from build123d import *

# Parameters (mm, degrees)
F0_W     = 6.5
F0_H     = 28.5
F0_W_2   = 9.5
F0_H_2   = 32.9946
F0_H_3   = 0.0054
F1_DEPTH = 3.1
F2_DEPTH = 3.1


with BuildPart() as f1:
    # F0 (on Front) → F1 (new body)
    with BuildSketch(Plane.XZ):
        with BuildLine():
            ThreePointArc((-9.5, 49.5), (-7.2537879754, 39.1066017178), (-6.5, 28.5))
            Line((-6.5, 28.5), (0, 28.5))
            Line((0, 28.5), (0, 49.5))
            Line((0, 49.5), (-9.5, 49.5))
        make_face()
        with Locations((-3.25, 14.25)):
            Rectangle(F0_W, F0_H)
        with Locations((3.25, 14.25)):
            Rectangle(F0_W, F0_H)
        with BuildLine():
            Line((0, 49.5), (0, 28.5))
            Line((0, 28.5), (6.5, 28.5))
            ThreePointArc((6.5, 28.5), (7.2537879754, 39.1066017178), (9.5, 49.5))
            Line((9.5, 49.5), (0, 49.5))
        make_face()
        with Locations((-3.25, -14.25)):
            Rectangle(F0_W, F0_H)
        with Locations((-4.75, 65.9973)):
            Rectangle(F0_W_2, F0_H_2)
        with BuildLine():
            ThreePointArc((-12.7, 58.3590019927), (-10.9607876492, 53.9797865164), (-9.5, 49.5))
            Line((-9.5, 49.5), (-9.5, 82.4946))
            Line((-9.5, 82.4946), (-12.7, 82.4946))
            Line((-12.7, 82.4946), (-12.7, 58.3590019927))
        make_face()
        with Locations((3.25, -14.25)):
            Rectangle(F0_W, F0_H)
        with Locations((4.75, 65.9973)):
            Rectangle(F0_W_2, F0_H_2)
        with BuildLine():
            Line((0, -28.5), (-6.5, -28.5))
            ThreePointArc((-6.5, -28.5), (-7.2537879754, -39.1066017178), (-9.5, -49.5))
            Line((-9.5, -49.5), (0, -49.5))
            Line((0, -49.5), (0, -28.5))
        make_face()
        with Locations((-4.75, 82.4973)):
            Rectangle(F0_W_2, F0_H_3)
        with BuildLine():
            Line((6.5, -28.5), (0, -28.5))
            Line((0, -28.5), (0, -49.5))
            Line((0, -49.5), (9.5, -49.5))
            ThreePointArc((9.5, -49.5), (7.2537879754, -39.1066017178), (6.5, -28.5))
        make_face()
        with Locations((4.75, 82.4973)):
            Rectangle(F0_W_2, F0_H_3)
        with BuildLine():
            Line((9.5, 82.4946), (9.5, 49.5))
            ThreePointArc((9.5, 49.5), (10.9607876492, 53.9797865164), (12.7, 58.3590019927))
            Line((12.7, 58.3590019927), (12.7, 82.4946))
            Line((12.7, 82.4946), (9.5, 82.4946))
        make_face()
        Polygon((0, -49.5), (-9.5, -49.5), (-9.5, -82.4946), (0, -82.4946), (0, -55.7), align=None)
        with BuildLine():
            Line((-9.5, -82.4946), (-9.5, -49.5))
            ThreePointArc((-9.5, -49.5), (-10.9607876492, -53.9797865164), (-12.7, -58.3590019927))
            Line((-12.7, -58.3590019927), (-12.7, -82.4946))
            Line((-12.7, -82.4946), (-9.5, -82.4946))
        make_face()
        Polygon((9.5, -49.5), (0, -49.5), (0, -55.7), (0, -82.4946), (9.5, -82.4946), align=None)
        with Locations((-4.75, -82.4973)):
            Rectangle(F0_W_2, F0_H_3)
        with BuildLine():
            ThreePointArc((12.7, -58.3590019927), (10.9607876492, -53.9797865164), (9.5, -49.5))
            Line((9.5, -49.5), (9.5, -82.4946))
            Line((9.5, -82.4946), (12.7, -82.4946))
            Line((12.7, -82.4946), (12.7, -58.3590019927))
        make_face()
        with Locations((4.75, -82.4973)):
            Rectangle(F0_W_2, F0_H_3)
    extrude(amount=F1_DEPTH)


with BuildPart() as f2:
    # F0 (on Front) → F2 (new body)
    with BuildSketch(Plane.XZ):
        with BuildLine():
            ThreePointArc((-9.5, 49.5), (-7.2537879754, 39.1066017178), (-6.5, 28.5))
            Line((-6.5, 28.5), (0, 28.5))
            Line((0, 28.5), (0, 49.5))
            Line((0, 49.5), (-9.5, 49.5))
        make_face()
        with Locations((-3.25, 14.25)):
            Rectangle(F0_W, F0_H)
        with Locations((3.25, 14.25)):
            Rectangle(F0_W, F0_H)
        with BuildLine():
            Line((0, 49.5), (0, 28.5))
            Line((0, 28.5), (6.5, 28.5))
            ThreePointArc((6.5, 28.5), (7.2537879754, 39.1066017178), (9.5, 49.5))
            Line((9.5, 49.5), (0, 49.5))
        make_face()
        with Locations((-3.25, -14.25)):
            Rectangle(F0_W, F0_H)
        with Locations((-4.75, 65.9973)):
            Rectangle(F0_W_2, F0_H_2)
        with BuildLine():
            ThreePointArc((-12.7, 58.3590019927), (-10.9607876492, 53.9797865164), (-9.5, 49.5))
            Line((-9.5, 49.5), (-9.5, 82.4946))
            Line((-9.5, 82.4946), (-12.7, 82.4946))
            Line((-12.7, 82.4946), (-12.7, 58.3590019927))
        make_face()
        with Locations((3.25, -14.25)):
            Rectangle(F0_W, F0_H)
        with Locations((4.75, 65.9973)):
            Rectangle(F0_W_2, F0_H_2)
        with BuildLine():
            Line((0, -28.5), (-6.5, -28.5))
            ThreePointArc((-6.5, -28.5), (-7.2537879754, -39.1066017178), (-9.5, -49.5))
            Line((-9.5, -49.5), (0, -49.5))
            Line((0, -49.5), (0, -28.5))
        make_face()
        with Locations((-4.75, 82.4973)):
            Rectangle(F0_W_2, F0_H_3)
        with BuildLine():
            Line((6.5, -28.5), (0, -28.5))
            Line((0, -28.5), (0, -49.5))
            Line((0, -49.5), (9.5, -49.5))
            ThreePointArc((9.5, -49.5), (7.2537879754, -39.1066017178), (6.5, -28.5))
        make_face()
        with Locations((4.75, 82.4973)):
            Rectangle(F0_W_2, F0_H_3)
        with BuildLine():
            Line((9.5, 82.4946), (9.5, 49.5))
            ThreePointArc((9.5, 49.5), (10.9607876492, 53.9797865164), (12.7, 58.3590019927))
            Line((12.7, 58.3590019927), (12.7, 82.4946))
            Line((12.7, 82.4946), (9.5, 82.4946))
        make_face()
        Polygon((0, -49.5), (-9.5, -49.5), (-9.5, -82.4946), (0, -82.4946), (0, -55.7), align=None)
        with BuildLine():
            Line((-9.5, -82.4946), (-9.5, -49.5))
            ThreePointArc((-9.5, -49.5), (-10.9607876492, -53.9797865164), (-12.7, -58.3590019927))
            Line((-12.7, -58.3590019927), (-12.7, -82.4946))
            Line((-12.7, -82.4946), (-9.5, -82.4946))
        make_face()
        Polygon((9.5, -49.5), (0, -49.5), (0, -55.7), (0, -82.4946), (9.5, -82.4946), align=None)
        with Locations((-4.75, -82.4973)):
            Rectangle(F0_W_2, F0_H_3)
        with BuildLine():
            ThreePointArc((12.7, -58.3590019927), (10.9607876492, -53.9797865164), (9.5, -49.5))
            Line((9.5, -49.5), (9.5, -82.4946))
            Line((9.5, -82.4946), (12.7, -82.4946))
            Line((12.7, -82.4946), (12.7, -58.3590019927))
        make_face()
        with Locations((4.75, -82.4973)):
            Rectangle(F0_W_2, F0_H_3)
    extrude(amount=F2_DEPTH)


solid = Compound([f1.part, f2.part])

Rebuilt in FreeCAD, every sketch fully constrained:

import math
import FreeCAD as App
import Part
import Sketcher
Q = App.Units.Quantity

doc = App.newDocument("Part")
body = doc.addObject("PartDesign::Body", "Body")

sketch1 = body.newObject("Sketcher::SketchObject", "Sketch")
sketch1.AttachmentSupport = (doc.getObject("XZ_Plane"), [""])
sketch1.MapMode = "FlatFace"
sketch1.addGeometry(Part.ArcOfCircle(Part.Circle(App.Vector(-81.5, 28.5, 0), App.Vector(0, 0, 1), 75), math.radians(0), math.radians(16.26)), False)
sketch1.addGeometry(Part.LineSegment(App.Vector(-6.5, 28.5, 0), App.Vector(-6.5, -28.5, 0)), False)
sketch1.addGeometry(Part.ArcOfCircle(Part.Circle(App.Vector(-81.5, -28.5, 0), App.Vector(0, 0, 1), 75), math.radians(-16.26), math.radians(0)), False)
sketch1.addGeometry(Part.ArcOfCircle(Part.Circle(App.Vector(-81.5, -28.5, 0), App.Vector(0, 0, 1), 75), math.radians(-23.46), math.radians(-16.26)), False)
sketch1.addGeometry(Part.LineSegment(App.Vector(-12.7, -58.359, 0), App.Vector(-12.7, -82.495, 0)), False)
sketch1.addGeometry(Part.LineSegment(App.Vector(-12.7, -82.495, 0), App.Vector(-9.5, -82.495, 0)), False)
sketch1.addGeometry(Part.LineSegment(App.Vector(-9.5, -82.495, 0), App.Vector(-9.5, -82.5, 0)), False)
sketch1.addGeometry(Part.LineSegment(App.Vector(-9.5, -82.5, 0), App.Vector(9.5, -82.5, 0)), False)
sketch1.addGeometry(Part.LineSegment(App.Vector(9.5, -82.5, 0), App.Vector(9.5, -82.495, 0)), False)
sketch1.addGeometry(Part.LineSegment(App.Vector(9.5, -82.495, 0), App.Vector(12.7, -82.495, 0)), False)
sketch1.addGeometry(Part.LineSegment(App.Vector(12.7, -82.495, 0), App.Vector(12.7, -58.359, 0)), False)
sketch1.addGeometry(Part.ArcOfCircle(Part.Circle(App.Vector(81.5, -28.5, 0), App.Vector(0, 0, 1), 75), math.radians(-163.74), math.radians(-156.54)), False)
sketch1.addGeometry(Part.ArcOfCircle(Part.Circle(App.Vector(81.5, -28.5, 0), App.Vector(0, 0, 1), 75), math.radians(180), math.radians(196.26)), False)
sketch1.addGeometry(Part.LineSegment(App.Vector(6.5, -28.5, 0), App.Vector(6.5, 28.5, 0)), False)
sketch1.addGeometry(Part.ArcOfCircle(Part.Circle(App.Vector(81.5, 28.5, 0), App.Vector(0, 0, 1), 75), math.radians(163.74), math.radians(180)), False)
sketch1.addGeometry(Part.ArcOfCircle(Part.Circle(App.Vector(81.5, 28.5, 0), App.Vector(0, 0, 1), 75), math.radians(156.54), math.radians(163.74)), False)
sketch1.addGeometry(Part.LineSegment(App.Vector(12.7, 58.359, 0), App.Vector(12.7, 82.495, 0)), False)
sketch1.addGeometry(Part.LineSegment(App.Vector(12.7, 82.495, 0), App.Vector(9.5, 82.495, 0)), False)
sketch1.addGeometry(Part.LineSegment(App.Vector(9.5, 82.495, 0), App.Vector(9.5, 82.5, 0)), False)
sketch1.addGeometry(Part.LineSegment(App.Vector(9.5, 82.5, 0), App.Vector(-9.5, 82.5, 0)), False)
sketch1.addGeometry(Part.LineSegment(App.Vector(-9.5, 82.5, 0), App.Vector(-9.5, 82.495, 0)), False)
sketch1.addGeometry(Part.LineSegment(App.Vector(-9.5, 82.495, 0), App.Vector(-12.7, 82.495, 0)), False)
sketch1.addGeometry(Part.LineSegment(App.Vector(-12.7, 82.495, 0), App.Vector(-12.7, 58.359, 0)), False)
sketch1.addGeometry(Part.ArcOfCircle(Part.Circle(App.Vector(-81.5, 28.5, 0), App.Vector(0, 0, 1), 75), math.radians(16.26), math.radians(23.46)), False)
sketch1.addConstraint(Sketcher.Constraint("Tangent", 0, 1, 1, 1))
sketch1.addConstraint(Sketcher.Constraint("Tangent", 1, 2, 2, 2))
sketch1.addConstraint(Sketcher.Constraint("Tangent", 2, 1, 3, 2))
sketch1.addConstraint(Sketcher.Constraint("Coincident", 3, 1, 4, 1))
sketch1.addConstraint(Sketcher.Constraint("Coincident", 4, 2, 5, 1))
sketch1.addConstraint(Sketcher.Constraint("Coincident", 5, 2, 6, 1))
sketch1.addConstraint(Sketcher.Constraint("Coincident", 6, 2, 7, 1))
sketch1.addConstraint(Sketcher.Constraint("Coincident", 7, 2, 8, 1))
sketch1.addConstraint(Sketcher.Constraint("Coincident", 8, 2, 9, 1))
sketch1.addConstraint(Sketcher.Constraint("Coincident", 9, 2, 10, 1))
sketch1.addConstraint(Sketcher.Constraint("Coincident", 10, 2, 11, 2))
sketch1.addConstraint(Sketcher.Constraint("Tangent", 11, 1, 12, 2))
sketch1.addConstraint(Sketcher.Constraint("Tangent", 12, 1, 13, 1))
sketch1.addConstraint(Sketcher.Constraint("Tangent", 13, 2, 14, 2))
sketch1.addConstraint(Sketcher.Constraint("Tangent", 14, 1, 15, 2))
sketch1.addConstraint(Sketcher.Constraint("Coincident", 15, 1, 16, 1))
sketch1.addConstraint(Sketcher.Constraint("Coincident", 16, 2, 17, 1))
sketch1.addConstraint(Sketcher.Constraint("Coincident", 17, 2, 18, 1))
sketch1.addConstraint(Sketcher.Constraint("Coincident", 18, 2, 19, 1))
sketch1.addConstraint(Sketcher.Constraint("Coincident", 19, 2, 20, 1))
sketch1.addConstraint(Sketcher.Constraint("Coincident", 20, 2, 21, 1))
sketch1.addConstraint(Sketcher.Constraint("Coincident", 21, 2, 22, 1))
sketch1.addConstraint(Sketcher.Constraint("Coincident", 22, 2, 23, 2))
sketch1.addConstraint(Sketcher.Constraint("Tangent", 23, 1, 0, 2))
sketch1.addConstraint(Sketcher.Constraint("Vertical", 1))
sketch1.addConstraint(Sketcher.Constraint("Vertical", 4))
sketch1.addConstraint(Sketcher.Constraint("Horizontal", 5))
sketch1.addConstraint(Sketcher.Constraint("Vertical", 6))
sketch1.addConstraint(Sketcher.Constraint("Horizontal", 7))
sketch1.addConstraint(Sketcher.Constraint("Vertical", 8))
sketch1.addConstraint(Sketcher.Constraint("Horizontal", 9))
sketch1.addConstraint(Sketcher.Constraint("Vertical", 10))
sketch1.addConstraint(Sketcher.Constraint("Vertical", 13))
sketch1.addConstraint(Sketcher.Constraint("Vertical", 16))
sketch1.addConstraint(Sketcher.Constraint("Horizontal", 17))
sketch1.addConstraint(Sketcher.Constraint("Vertical", 18))
sketch1.addConstraint(Sketcher.Constraint("Horizontal", 19))
sketch1.addConstraint(Sketcher.Constraint("Vertical", 20))
sketch1.addConstraint(Sketcher.Constraint("Horizontal", 21))
sketch1.addConstraint(Sketcher.Constraint("Vertical", 22))
sketch1.addConstraint(Sketcher.Constraint("Equal", 0, 2))
sketch1.addConstraint(Sketcher.Constraint("Equal", 2, 3))
sketch1.addConstraint(Sketcher.Constraint("Equal", 3, 11))
sketch1.addConstraint(Sketcher.Constraint("Equal", 11, 12))
sketch1.addConstraint(Sketcher.Constraint("Equal", 12, 14))
sketch1.addConstraint(Sketcher.Constraint("Equal", 14, 15))
sketch1.addConstraint(Sketcher.Constraint("Equal", 15, 23))
sketch1.addConstraint(Sketcher.Constraint("Symmetric", 0, 3, 11, 3, -1, 1))
sketch1.addConstraint(Sketcher.Constraint("Symmetric", 2, 1, 14, 1, -1, 1))
sketch1.addConstraint(Sketcher.Constraint("Symmetric", 4, 2, 16, 2, -1, 1))
sketch1.addConstraint(Sketcher.Constraint("Symmetric", 6, 2, 18, 2, -1, 1))
sketch1.addConstraint(Sketcher.Constraint("Symmetric", 8, 2, 20, 2, -1, 1))
sketch1.addConstraint(Sketcher.Constraint("Symmetric", 5, 2, 8, 2, -2))
sketch1.addConstraint(Sketcher.Constraint("Symmetric", 3, 1, 10, 2, -2))
sketch1.addConstraint(Sketcher.Constraint("Horizontal", 2, 1, 11, 1))
sketch1.addConstraint(Sketcher.Constraint("Horizontal", 15, 1, 22, 2))
sketch1.addConstraint(Sketcher.Constraint("Horizontal", 14, 1, 23, 1))
sketch1.addConstraint(Sketcher.Constraint("Vertical", 2, 1, 5, 2))
sketch1.addConstraint(Sketcher.Constraint("Radius", 0, Q("75 mm")))
sketch1.addConstraint(Sketcher.Constraint("DistanceX", 7, 1, 7, 2, Q("19 mm")))
sketch1.addConstraint(Sketcher.Constraint("DistanceY", 1, 2, 1, 1, Q("57 mm")))
sketch1.addConstraint(Sketcher.Constraint("DistanceX", 5, 1, 5, 2, Q("3.2 mm")))
sketch1.addConstraint(Sketcher.Constraint("DistanceX", 2, 3, 11, 3, Q("163 mm")))
sketch1.addConstraint(Sketcher.Constraint("DistanceY", 6, 2, 2, 1, Q("33 mm")))
sketch1.addConstraint(Sketcher.Constraint("DistanceY", 4, 2, 4, 1, Q("24.135598 mm")))
pad1 = body.newObject("PartDesign::Pad", "Pad")
pad1.Profile = sketch1
pad1.Length = 3.1
body2 = doc.addObject("PartDesign::Body", "Body001")

sketch2 = body2.newObject("Sketcher::SketchObject", "Sketch001")
sketch2.AttachmentSupport = (doc.getObject("XZ_Plane001"), [""])
sketch2.MapMode = "FlatFace"
sketch2.addGeometry(Part.ArcOfCircle(Part.Circle(App.Vector(-81.5, 28.5, 0), App.Vector(0, 0, 1), 75), math.radians(0), math.radians(16.26)), False)
sketch2.addGeometry(Part.LineSegment(App.Vector(-6.5, 28.5, 0), App.Vector(-6.5, -28.5, 0)), False)
sketch2.addGeometry(Part.ArcOfCircle(Part.Circle(App.Vector(-81.5, -28.5, 0), App.Vector(0, 0, 1), 75), math.radians(-16.26), math.radians(0)), False)
sketch2.addGeometry(Part.ArcOfCircle(Part.Circle(App.Vector(-81.5, -28.5, 0), App.Vector(0, 0, 1), 75), math.radians(-23.46), math.radians(-16.26)), False)
sketch2.addGeometry(Part.LineSegment(App.Vector(-12.7, -58.359, 0), App.Vector(-12.7, -82.495, 0)), False)
sketch2.addGeometry(Part.LineSegment(App.Vector(-12.7, -82.495, 0), App.Vector(-9.5, -82.495, 0)), False)
sketch2.addGeometry(Part.LineSegment(App.Vector(-9.5, -82.495, 0), App.Vector(-9.5, -82.5, 0)), False)
sketch2.addGeometry(Part.LineSegment(App.Vector(-9.5, -82.5, 0), App.Vector(9.5, -82.5, 0)), False)
sketch2.addGeometry(Part.LineSegment(App.Vector(9.5, -82.5, 0), App.Vector(9.5, -82.495, 0)), False)
sketch2.addGeometry(Part.LineSegment(App.Vector(9.5, -82.495, 0), App.Vector(12.7, -82.495, 0)), False)
sketch2.addGeometry(Part.LineSegment(App.Vector(12.7, -82.495, 0), App.Vector(12.7, -58.359, 0)), False)
sketch2.addGeometry(Part.ArcOfCircle(Part.Circle(App.Vector(81.5, -28.5, 0), App.Vector(0, 0, 1), 75), math.radians(-163.74), math.radians(-156.54)), False)
sketch2.addGeometry(Part.ArcOfCircle(Part.Circle(App.Vector(81.5, -28.5, 0), App.Vector(0, 0, 1), 75), math.radians(180), math.radians(196.26)), False)
sketch2.addGeometry(Part.LineSegment(App.Vector(6.5, -28.5, 0), App.Vector(6.5, 28.5, 0)), False)
sketch2.addGeometry(Part.ArcOfCircle(Part.Circle(App.Vector(81.5, 28.5, 0), App.Vector(0, 0, 1), 75), math.radians(163.74), math.radians(180)), False)
sketch2.addGeometry(Part.ArcOfCircle(Part.Circle(App.Vector(81.5, 28.5, 0), App.Vector(0, 0, 1), 75), math.radians(156.54), math.radians(163.74)), False)
sketch2.addGeometry(Part.LineSegment(App.Vector(12.7, 58.359, 0), App.Vector(12.7, 82.495, 0)), False)
sketch2.addGeometry(Part.LineSegment(App.Vector(12.7, 82.495, 0), App.Vector(9.5, 82.495, 0)), False)
sketch2.addGeometry(Part.LineSegment(App.Vector(9.5, 82.495, 0), App.Vector(9.5, 82.5, 0)), False)
sketch2.addGeometry(Part.LineSegment(App.Vector(9.5, 82.5, 0), App.Vector(-9.5, 82.5, 0)), False)
sketch2.addGeometry(Part.LineSegment(App.Vector(-9.5, 82.5, 0), App.Vector(-9.5, 82.495, 0)), False)
sketch2.addGeometry(Part.LineSegment(App.Vector(-9.5, 82.495, 0), App.Vector(-12.7, 82.495, 0)), False)
sketch2.addGeometry(Part.LineSegment(App.Vector(-12.7, 82.495, 0), App.Vector(-12.7, 58.359, 0)), False)
sketch2.addGeometry(Part.ArcOfCircle(Part.Circle(App.Vector(-81.5, 28.5, 0), App.Vector(0, 0, 1), 75), math.radians(16.26), math.radians(23.46)), False)
sketch2.addConstraint(Sketcher.Constraint("Tangent", 0, 1, 1, 1))
sketch2.addConstraint(Sketcher.Constraint("Tangent", 1, 2, 2, 2))
sketch2.addConstraint(Sketcher.Constraint("Tangent", 2, 1, 3, 2))
sketch2.addConstraint(Sketcher.Constraint("Coincident", 3, 1, 4, 1))
sketch2.addConstraint(Sketcher.Constraint("Coincident", 4, 2, 5, 1))
sketch2.addConstraint(Sketcher.Constraint("Coincident", 5, 2, 6, 1))
sketch2.addConstraint(Sketcher.Constraint("Coincident", 6, 2, 7, 1))
sketch2.addConstraint(Sketcher.Constraint("Coincident", 7, 2, 8, 1))
sketch2.addConstraint(Sketcher.Constraint("Coincident", 8, 2, 9, 1))
sketch2.addConstraint(Sketcher.Constraint("Coincident", 9, 2, 10, 1))
sketch2.addConstraint(Sketcher.Constraint("Coincident", 10, 2, 11, 2))
sketch2.addConstraint(Sketcher.Constraint("Tangent", 11, 1, 12, 2))
sketch2.addConstraint(Sketcher.Constraint("Tangent", 12, 1, 13, 1))
sketch2.addConstraint(Sketcher.Constraint("Tangent", 13, 2, 14, 2))
sketch2.addConstraint(Sketcher.Constraint("Tangent", 14, 1, 15, 2))
sketch2.addConstraint(Sketcher.Constraint("Coincident", 15, 1, 16, 1))
sketch2.addConstraint(Sketcher.Constraint("Coincident", 16, 2, 17, 1))
sketch2.addConstraint(Sketcher.Constraint("Coincident", 17, 2, 18, 1))
sketch2.addConstraint(Sketcher.Constraint("Coincident", 18, 2, 19, 1))
sketch2.addConstraint(Sketcher.Constraint("Coincident", 19, 2, 20, 1))
sketch2.addConstraint(Sketcher.Constraint("Coincident", 20, 2, 21, 1))
sketch2.addConstraint(Sketcher.Constraint("Coincident", 21, 2, 22, 1))
sketch2.addConstraint(Sketcher.Constraint("Coincident", 22, 2, 23, 2))
sketch2.addConstraint(Sketcher.Constraint("Tangent", 23, 1, 0, 2))
sketch2.addConstraint(Sketcher.Constraint("Vertical", 1))
sketch2.addConstraint(Sketcher.Constraint("Vertical", 4))
sketch2.addConstraint(Sketcher.Constraint("Horizontal", 5))
sketch2.addConstraint(Sketcher.Constraint("Vertical", 6))
sketch2.addConstraint(Sketcher.Constraint("Horizontal", 7))
sketch2.addConstraint(Sketcher.Constraint("Vertical", 8))
sketch2.addConstraint(Sketcher.Constraint("Horizontal", 9))
sketch2.addConstraint(Sketcher.Constraint("Vertical", 10))
sketch2.addConstraint(Sketcher.Constraint("Vertical", 13))
sketch2.addConstraint(Sketcher.Constraint("Vertical", 16))
sketch2.addConstraint(Sketcher.Constraint("Horizontal", 17))
sketch2.addConstraint(Sketcher.Constraint("Vertical", 18))
sketch2.addConstraint(Sketcher.Constraint("Horizontal", 19))
sketch2.addConstraint(Sketcher.Constraint("Vertical", 20))
sketch2.addConstraint(Sketcher.Constraint("Horizontal", 21))
sketch2.addConstraint(Sketcher.Constraint("Vertical", 22))
sketch2.addConstraint(Sketcher.Constraint("Equal", 0, 2))
sketch2.addConstraint(Sketcher.Constraint("Equal", 2, 3))
sketch2.addConstraint(Sketcher.Constraint("Equal", 3, 11))
sketch2.addConstraint(Sketcher.Constraint("Equal", 11, 12))
sketch2.addConstraint(Sketcher.Constraint("Equal", 12, 14))
sketch2.addConstraint(Sketcher.Constraint("Equal", 14, 15))
sketch2.addConstraint(Sketcher.Constraint("Equal", 15, 23))
sketch2.addConstraint(Sketcher.Constraint("Symmetric", 0, 3, 11, 3, -1, 1))
sketch2.addConstraint(Sketcher.Constraint("Symmetric", 2, 1, 14, 1, -1, 1))
sketch2.addConstraint(Sketcher.Constraint("Symmetric", 4, 2, 16, 2, -1, 1))
sketch2.addConstraint(Sketcher.Constraint("Symmetric", 6, 2, 18, 2, -1, 1))
sketch2.addConstraint(Sketcher.Constraint("Symmetric", 8, 2, 20, 2, -1, 1))
sketch2.addConstraint(Sketcher.Constraint("Symmetric", 5, 2, 8, 2, -2))
sketch2.addConstraint(Sketcher.Constraint("Symmetric", 3, 1, 10, 2, -2))
sketch2.addConstraint(Sketcher.Constraint("Horizontal", 2, 1, 11, 1))
sketch2.addConstraint(Sketcher.Constraint("Horizontal", 15, 1, 22, 2))
sketch2.addConstraint(Sketcher.Constraint("Horizontal", 14, 1, 23, 1))
sketch2.addConstraint(Sketcher.Constraint("Vertical", 2, 1, 5, 2))
sketch2.addConstraint(Sketcher.Constraint("Radius", 0, Q("75 mm")))
sketch2.addConstraint(Sketcher.Constraint("DistanceX", 7, 1, 7, 2, Q("19 mm")))
sketch2.addConstraint(Sketcher.Constraint("DistanceY", 1, 2, 1, 1, Q("57 mm")))
sketch2.addConstraint(Sketcher.Constraint("DistanceX", 5, 1, 5, 2, Q("3.2 mm")))
sketch2.addConstraint(Sketcher.Constraint("DistanceX", 2, 3, 11, 3, Q("163 mm")))
sketch2.addConstraint(Sketcher.Constraint("DistanceY", 6, 2, 2, 1, Q("33 mm")))
sketch2.addConstraint(Sketcher.Constraint("DistanceY", 4, 2, 4, 1, Q("24.135598 mm")))
pad2 = body2.newObject("PartDesign::Pad", "Pad001")
pad2.Profile = sketch2
pad2.Length = 3.1

doc.recompute()
